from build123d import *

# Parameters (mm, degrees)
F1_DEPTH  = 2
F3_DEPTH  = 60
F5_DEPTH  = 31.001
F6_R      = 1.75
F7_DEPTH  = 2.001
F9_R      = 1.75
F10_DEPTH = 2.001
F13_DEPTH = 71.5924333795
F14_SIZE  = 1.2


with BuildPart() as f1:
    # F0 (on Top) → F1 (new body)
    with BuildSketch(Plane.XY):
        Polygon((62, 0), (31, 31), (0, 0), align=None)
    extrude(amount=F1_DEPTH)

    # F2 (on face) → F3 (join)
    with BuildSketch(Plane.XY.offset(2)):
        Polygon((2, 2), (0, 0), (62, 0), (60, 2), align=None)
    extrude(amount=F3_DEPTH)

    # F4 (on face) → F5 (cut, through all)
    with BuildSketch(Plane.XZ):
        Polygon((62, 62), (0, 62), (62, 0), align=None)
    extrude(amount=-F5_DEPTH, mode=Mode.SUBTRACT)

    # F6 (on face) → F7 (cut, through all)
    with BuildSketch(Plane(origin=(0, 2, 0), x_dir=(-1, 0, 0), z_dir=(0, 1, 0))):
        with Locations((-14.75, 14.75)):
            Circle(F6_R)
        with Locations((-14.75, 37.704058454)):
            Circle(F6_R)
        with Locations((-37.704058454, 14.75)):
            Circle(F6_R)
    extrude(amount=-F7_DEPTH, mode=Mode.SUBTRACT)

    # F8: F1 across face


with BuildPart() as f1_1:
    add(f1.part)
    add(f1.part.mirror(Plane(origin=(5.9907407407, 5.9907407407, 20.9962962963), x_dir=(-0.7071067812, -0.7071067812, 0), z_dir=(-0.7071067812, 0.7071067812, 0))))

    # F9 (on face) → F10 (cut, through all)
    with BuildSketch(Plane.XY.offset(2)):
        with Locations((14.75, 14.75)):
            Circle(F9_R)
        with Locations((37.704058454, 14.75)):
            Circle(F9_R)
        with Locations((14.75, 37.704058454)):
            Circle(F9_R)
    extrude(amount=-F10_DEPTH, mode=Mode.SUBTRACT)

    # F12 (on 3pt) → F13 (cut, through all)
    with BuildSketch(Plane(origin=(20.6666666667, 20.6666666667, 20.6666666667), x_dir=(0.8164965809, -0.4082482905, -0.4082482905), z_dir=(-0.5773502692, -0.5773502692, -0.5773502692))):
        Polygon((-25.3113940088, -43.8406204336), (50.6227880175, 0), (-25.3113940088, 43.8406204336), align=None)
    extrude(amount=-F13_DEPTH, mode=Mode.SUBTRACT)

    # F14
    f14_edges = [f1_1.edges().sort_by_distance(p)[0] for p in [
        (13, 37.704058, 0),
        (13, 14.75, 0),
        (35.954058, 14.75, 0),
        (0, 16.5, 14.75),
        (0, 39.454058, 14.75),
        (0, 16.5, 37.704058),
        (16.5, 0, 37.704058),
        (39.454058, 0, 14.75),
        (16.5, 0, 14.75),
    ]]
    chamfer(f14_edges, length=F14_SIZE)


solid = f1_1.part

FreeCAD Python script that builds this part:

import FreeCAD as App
import Part
import Sketcher
from FreeCAD import Vector
Q = App.Units.Quantity


def edges_at(feature, points):
    """Names of the edges that pass closest to the given points."""
    edges = feature.Shape.Edges
    near = lambda p: min(range(len(edges)), key=lambda i: edges[i].distToShape(Part.Vertex(*p))[0])
    return sorted({f"Edge{near(p) + 1}" for p in points})

doc = App.newDocument("Part")
body = doc.addObject("PartDesign::Body", "Body")

# Sketch on XY plane
sketch1 = body.newObject("Sketcher::SketchObject", "Sketch")
sketch1.AttachmentSupport = (doc.getObject("XY_Plane"), [""])
sketch1.MapMode = "FlatFace"
sketch1.addGeometry([
    Part.LineSegment(Vector(62, 0, 0), Vector(31, 31, 0)),
    Part.LineSegment(Vector(31, 31, 0), Vector(0, 0, 0)),
    Part.LineSegment(Vector(0, 0, 0), Vector(62, 0, 0)),
], False)
sketch1.addConstraint([
    Sketcher.Constraint("Coincident", 0, 2, 1, 1),
    Sketcher.Constraint("Coincident", 1, 2, 2, 1),
    Sketcher.Constraint("Coincident", 2, 2, 0, 1),
    Sketcher.Constraint("Horizontal", 2),
    Sketcher.Constraint("Coincident", 1, 2, -1, 1),
    Sketcher.Constraint("Perpendicular", 0, 1),
    Sketcher.Constraint("Equal", 0, 1),
    Sketcher.Constraint("DistanceX", 2, 1, 2, 2, 62.0),
])
pad1 = body.newObject("PartDesign::Pad", "Pad")
pad1.Profile = sketch1
pad1.Length = 2

# Sketch on XY plane
sketch2 = body.newObject("Sketcher::SketchObject", "Sketch001")
sketch2.AttachmentSupport = (doc.getObject("XY_Plane"), [""])
sketch2.MapMode = "FlatFace"
sketch2.AttachmentOffset = App.Placement(Vector(0, 0, 2), App.Rotation())
sketch2.addGeometry([
    Part.LineSegment(Vector(2, 2, 0), Vector(0, 0, 0)),
    Part.LineSegment(Vector(0, 0, 0), Vector(62, 0, 0)),
    Part.LineSegment(Vector(62, 0, 0), Vector(60, 2, 0)),
    Part.LineSegment(Vector(60, 2, 0), Vector(2, 2, 0)),
], False)
sketch2.addConstraint([
    Sketcher.Constraint("Coincident", 0, 2, 1, 1),
    Sketcher.Constraint("Coincident", 1, 2, 2, 1),
    Sketcher.Constraint("Coincident", 2, 2, 3, 1),
    Sketcher.Constraint("Coincident", 3, 2, 0, 1),
    Sketcher.Constraint("Horizontal", 1),
    Sketcher.Constraint("Horizontal", 3),
    Sketcher.Constraint("Coincident", 0, 2, -1, 1),
    Sketcher.Constraint("Perpendicular", 0, 2),
    Sketcher.Constraint("Equal", 0, 2),
    Sketcher.Constraint("DistanceX", 1, 1, 1, 2, 62.0),
    Sketcher.Constraint("DistanceX", 3, 2, 3, 1, 58.0),
])
pad2 = body.newObject("PartDesign::Pad", "Pad001")
pad2.Profile = sketch2
pad2.Length = 60

# Sketch on XZ plane
sketch3 = body.newObject("Sketcher::SketchObject", "Sketch002")
sketch3.AttachmentSupport = (doc.getObject("XZ_Plane"), [""])
sketch3.MapMode = "FlatFace"
sketch3.addGeometry([
    Part.LineSegment(Vector(62, 62, 0), Vector(0, 62, 0)),
    Part.LineSegment(Vector(0, 62, 0), Vector(62, 0, 0)),
    Part.LineSegment(Vector(62, 0, 0), Vector(62, 62, 0)),
], False)
sketch3.addConstraint([
    Sketcher.Constraint("Coincident", 0, 2, 1, 1),
    Sketcher.Constraint("Coincident", 1, 2, 2, 1),
    Sketcher.Constraint("Coincident", 2, 2, 0, 1),
    Sketcher.Constraint("Horizontal", 0),
    Sketcher.Constraint("Vertical", 2),
    Sketcher.Constraint("PointOnObject", 0, 2, -2),
    Sketcher.Constraint("PointOnObject", 1, 2, -1),
    Sketcher.Constraint("Equal", 0, 2),
    Sketcher.Constraint("DistanceX", 0, 2, 0, 1, 62.0),
])
pocket1 = body.newObject("PartDesign::Pocket", "Pocket")
pocket1.Profile = sketch3
pocket1.Type = "ThroughAll"

# Sketch on XZ plane
sketch4 = body.newObject("Sketcher::SketchObject", "Sketch003")
sketch4.AttachmentSupport = (doc.getObject("XZ_Plane"), [""])
sketch4.MapMode = "FlatFace"
sketch4.AttachmentOffset = App.Placement(Vector(0, 0, -2), App.Rotation())
sketch4.addGeometry([
    Part.Circle(Vector(14.8, 14.8, 0), Vector(0, 0, 1), 1.8),
    Part.Circle(Vector(14.8, 37.7, 0), Vector(0, 0, 1), 1.8),
    Part.Circle(Vector(37.7, 14.8, 0), Vector(0, 0, 1), 1.8),
], False)
sketch4.addConstraint([
    Sketcher.Constraint("Equal", 0, 1),
    Sketcher.Constraint("Equal", 1, 2),
    Sketcher.Constraint("Horizontal", 0, 3, 2, 3),
    Sketcher.Constraint("Vertical", 0, 3, 1, 3),
    Sketcher.Constraint("Diameter", 0, 3.5),
    Sketcher.Constraint("DistanceX", -1, 1, 0, 3, 14.75),
    Sketcher.Constraint("DistanceY", -1, 1, 0, 3, 14.75),
    Sketcher.Constraint("DistanceY", -1, 1, 1, 3, 37.704058),
    Sketcher.Constraint("DistanceX", -1, 1, 2, 3, 37.704058),
])
pocket2 = body.newObject("PartDesign::Pocket", "Pocket001")
pocket2.Profile = sketch4
pocket2.Type = "ThroughAll"
pocket2.Reversed = True
body2 = doc.addObject("PartDesign::Body", "Body001")
doc.recompute()

body2.BaseFeature = body
doc.recompute()

mirroring = doc.addObject("Part::Mirroring", "Mirroring")
mirroring.Source = body
mirroring.Base = Vector(5.990741, 5.990741, 20.996296)
mirroring.Normal = Vector(-0.707106781, 0.707106781, 0)
body3 = doc.addObject("PartDesign::Body", "Body002")
body3.BaseFeature = mirroring
boolean = body2.newObject("PartDesign::Boolean", "Boolean")
boolean.Type = "Fuse"
boolean.addObjects([body3])
doc.recompute()

# Sketch on XY plane
sketch5 = body2.newObject("Sketcher::SketchObject", "Sketch004")
sketch5.AttachmentSupport = (doc.getObject("XY_Plane001"), [""])
sketch5.MapMode = "FlatFace"
sketch5.AttachmentOffset = App.Placement(Vector(0, 0, 2), App.Rotation())
sketch5.addGeometry([
    Part.Circle(Vector(14.8, 14.8, 0), Vector(0, 0, 1), 1.8),
    Part.Circle(Vector(37.7, 14.8, 0), Vector(0, 0, 1), 1.8),
    Part.Circle(Vector(14.8, 37.7, 0), Vector(0, 0, 1), 1.8),
], False)
sketch5.addConstraint([
    Sketcher.Constraint("Equal", 0, 1),
    Sketcher.Constraint("Equal", 1, 2),
    Sketcher.Constraint("Horizontal", 0, 3, 1, 3),
    Sketcher.Constraint("Vertical", 0, 3, 2, 3),
    Sketcher.Constraint("Diameter", 0, 3.5),
    Sketcher.Constraint("DistanceX", -1, 1, 0, 3, 14.75),
    Sketcher.Constraint("DistanceY", -1, 1, 0, 3, 14.75),
    Sketcher.Constraint("DistanceX", -1, 1, 1, 3, 37.704058),
    Sketcher.Constraint("DistanceY", -1, 1, 2, 3, 37.704058),
])
pocket3 = body2.newObject("PartDesign::Pocket", "Pocket002")
pocket3.Profile = sketch5
pocket3.Type = "ThroughAll"

# Sketch on an angled plane
sketch6 = body2.newObject("Sketcher::SketchObject", "Sketch005")
sketch6.Placement = App.Placement(Vector(20.666667, 20.666667, 20.666667), App.Rotation(Vector(0.816496581, -0.40824829, -0.40824829), Vector(0, -0.707106781, 0.707106781), Vector(-0.577350269, -0.577350269, -0.577350269), "ZXY"))
sketch6.addGeometry([
    Part.LineSegment(Vector(-25, -44, 0), Vector(51, 0, 0)),
    Part.LineSegment(Vector(51, 0, 0), Vector(-25, 44, 0)),
    Part.LineSegment(Vector(-25, 44, 0), Vector(-25, -44, 0)),
], False)
sketch6.addConstraint([
    Sketcher.Constraint("Coincident", 0, 2, 1, 1),
    Sketcher.Constraint("Coincident", 1, 2, 2, 1),
    Sketcher.Constraint("Coincident", 2, 2, 0, 1),
    Sketcher.Constraint("Vertical", 2),
    Sketcher.Constraint("PointOnObject", 0, 2, -1),
    Sketcher.Constraint("Equal", 0, 1),
    Sketcher.Constraint("Angle", 0, Q("30 deg")),
    Sketcher.Constraint("DistanceY", 2, 2, 2, 1, 87.681241),
    Sketcher.Constraint("DistanceX", -1, 1, 0, 2, 50.622788),
])
pocket4 = body2.newObject("PartDesign::Pocket", "Pocket003")
pocket4.Profile = sketch6
pocket4.Type = "ThroughAll"
doc.recompute()

chamfer = body2.newObject("PartDesign::Chamfer", "Chamfer")
chamfer.Base = (pocket4, edges_at(pocket4, [
    (13, 37.704, 0),
    (13, 14.75, 0),
    (35.954, 14.75, 0),
    (0, 16.5, 14.75),
    (0, 39.454, 14.75),
    (0, 16.5, 37.704),
    (16.5, 0, 37.704),
    (39.454, 0, 14.75),
    (16.5, 0, 14.75),
]))
chamfer.Size = 1.2
mirroring.Visibility = False

doc.recompute()
